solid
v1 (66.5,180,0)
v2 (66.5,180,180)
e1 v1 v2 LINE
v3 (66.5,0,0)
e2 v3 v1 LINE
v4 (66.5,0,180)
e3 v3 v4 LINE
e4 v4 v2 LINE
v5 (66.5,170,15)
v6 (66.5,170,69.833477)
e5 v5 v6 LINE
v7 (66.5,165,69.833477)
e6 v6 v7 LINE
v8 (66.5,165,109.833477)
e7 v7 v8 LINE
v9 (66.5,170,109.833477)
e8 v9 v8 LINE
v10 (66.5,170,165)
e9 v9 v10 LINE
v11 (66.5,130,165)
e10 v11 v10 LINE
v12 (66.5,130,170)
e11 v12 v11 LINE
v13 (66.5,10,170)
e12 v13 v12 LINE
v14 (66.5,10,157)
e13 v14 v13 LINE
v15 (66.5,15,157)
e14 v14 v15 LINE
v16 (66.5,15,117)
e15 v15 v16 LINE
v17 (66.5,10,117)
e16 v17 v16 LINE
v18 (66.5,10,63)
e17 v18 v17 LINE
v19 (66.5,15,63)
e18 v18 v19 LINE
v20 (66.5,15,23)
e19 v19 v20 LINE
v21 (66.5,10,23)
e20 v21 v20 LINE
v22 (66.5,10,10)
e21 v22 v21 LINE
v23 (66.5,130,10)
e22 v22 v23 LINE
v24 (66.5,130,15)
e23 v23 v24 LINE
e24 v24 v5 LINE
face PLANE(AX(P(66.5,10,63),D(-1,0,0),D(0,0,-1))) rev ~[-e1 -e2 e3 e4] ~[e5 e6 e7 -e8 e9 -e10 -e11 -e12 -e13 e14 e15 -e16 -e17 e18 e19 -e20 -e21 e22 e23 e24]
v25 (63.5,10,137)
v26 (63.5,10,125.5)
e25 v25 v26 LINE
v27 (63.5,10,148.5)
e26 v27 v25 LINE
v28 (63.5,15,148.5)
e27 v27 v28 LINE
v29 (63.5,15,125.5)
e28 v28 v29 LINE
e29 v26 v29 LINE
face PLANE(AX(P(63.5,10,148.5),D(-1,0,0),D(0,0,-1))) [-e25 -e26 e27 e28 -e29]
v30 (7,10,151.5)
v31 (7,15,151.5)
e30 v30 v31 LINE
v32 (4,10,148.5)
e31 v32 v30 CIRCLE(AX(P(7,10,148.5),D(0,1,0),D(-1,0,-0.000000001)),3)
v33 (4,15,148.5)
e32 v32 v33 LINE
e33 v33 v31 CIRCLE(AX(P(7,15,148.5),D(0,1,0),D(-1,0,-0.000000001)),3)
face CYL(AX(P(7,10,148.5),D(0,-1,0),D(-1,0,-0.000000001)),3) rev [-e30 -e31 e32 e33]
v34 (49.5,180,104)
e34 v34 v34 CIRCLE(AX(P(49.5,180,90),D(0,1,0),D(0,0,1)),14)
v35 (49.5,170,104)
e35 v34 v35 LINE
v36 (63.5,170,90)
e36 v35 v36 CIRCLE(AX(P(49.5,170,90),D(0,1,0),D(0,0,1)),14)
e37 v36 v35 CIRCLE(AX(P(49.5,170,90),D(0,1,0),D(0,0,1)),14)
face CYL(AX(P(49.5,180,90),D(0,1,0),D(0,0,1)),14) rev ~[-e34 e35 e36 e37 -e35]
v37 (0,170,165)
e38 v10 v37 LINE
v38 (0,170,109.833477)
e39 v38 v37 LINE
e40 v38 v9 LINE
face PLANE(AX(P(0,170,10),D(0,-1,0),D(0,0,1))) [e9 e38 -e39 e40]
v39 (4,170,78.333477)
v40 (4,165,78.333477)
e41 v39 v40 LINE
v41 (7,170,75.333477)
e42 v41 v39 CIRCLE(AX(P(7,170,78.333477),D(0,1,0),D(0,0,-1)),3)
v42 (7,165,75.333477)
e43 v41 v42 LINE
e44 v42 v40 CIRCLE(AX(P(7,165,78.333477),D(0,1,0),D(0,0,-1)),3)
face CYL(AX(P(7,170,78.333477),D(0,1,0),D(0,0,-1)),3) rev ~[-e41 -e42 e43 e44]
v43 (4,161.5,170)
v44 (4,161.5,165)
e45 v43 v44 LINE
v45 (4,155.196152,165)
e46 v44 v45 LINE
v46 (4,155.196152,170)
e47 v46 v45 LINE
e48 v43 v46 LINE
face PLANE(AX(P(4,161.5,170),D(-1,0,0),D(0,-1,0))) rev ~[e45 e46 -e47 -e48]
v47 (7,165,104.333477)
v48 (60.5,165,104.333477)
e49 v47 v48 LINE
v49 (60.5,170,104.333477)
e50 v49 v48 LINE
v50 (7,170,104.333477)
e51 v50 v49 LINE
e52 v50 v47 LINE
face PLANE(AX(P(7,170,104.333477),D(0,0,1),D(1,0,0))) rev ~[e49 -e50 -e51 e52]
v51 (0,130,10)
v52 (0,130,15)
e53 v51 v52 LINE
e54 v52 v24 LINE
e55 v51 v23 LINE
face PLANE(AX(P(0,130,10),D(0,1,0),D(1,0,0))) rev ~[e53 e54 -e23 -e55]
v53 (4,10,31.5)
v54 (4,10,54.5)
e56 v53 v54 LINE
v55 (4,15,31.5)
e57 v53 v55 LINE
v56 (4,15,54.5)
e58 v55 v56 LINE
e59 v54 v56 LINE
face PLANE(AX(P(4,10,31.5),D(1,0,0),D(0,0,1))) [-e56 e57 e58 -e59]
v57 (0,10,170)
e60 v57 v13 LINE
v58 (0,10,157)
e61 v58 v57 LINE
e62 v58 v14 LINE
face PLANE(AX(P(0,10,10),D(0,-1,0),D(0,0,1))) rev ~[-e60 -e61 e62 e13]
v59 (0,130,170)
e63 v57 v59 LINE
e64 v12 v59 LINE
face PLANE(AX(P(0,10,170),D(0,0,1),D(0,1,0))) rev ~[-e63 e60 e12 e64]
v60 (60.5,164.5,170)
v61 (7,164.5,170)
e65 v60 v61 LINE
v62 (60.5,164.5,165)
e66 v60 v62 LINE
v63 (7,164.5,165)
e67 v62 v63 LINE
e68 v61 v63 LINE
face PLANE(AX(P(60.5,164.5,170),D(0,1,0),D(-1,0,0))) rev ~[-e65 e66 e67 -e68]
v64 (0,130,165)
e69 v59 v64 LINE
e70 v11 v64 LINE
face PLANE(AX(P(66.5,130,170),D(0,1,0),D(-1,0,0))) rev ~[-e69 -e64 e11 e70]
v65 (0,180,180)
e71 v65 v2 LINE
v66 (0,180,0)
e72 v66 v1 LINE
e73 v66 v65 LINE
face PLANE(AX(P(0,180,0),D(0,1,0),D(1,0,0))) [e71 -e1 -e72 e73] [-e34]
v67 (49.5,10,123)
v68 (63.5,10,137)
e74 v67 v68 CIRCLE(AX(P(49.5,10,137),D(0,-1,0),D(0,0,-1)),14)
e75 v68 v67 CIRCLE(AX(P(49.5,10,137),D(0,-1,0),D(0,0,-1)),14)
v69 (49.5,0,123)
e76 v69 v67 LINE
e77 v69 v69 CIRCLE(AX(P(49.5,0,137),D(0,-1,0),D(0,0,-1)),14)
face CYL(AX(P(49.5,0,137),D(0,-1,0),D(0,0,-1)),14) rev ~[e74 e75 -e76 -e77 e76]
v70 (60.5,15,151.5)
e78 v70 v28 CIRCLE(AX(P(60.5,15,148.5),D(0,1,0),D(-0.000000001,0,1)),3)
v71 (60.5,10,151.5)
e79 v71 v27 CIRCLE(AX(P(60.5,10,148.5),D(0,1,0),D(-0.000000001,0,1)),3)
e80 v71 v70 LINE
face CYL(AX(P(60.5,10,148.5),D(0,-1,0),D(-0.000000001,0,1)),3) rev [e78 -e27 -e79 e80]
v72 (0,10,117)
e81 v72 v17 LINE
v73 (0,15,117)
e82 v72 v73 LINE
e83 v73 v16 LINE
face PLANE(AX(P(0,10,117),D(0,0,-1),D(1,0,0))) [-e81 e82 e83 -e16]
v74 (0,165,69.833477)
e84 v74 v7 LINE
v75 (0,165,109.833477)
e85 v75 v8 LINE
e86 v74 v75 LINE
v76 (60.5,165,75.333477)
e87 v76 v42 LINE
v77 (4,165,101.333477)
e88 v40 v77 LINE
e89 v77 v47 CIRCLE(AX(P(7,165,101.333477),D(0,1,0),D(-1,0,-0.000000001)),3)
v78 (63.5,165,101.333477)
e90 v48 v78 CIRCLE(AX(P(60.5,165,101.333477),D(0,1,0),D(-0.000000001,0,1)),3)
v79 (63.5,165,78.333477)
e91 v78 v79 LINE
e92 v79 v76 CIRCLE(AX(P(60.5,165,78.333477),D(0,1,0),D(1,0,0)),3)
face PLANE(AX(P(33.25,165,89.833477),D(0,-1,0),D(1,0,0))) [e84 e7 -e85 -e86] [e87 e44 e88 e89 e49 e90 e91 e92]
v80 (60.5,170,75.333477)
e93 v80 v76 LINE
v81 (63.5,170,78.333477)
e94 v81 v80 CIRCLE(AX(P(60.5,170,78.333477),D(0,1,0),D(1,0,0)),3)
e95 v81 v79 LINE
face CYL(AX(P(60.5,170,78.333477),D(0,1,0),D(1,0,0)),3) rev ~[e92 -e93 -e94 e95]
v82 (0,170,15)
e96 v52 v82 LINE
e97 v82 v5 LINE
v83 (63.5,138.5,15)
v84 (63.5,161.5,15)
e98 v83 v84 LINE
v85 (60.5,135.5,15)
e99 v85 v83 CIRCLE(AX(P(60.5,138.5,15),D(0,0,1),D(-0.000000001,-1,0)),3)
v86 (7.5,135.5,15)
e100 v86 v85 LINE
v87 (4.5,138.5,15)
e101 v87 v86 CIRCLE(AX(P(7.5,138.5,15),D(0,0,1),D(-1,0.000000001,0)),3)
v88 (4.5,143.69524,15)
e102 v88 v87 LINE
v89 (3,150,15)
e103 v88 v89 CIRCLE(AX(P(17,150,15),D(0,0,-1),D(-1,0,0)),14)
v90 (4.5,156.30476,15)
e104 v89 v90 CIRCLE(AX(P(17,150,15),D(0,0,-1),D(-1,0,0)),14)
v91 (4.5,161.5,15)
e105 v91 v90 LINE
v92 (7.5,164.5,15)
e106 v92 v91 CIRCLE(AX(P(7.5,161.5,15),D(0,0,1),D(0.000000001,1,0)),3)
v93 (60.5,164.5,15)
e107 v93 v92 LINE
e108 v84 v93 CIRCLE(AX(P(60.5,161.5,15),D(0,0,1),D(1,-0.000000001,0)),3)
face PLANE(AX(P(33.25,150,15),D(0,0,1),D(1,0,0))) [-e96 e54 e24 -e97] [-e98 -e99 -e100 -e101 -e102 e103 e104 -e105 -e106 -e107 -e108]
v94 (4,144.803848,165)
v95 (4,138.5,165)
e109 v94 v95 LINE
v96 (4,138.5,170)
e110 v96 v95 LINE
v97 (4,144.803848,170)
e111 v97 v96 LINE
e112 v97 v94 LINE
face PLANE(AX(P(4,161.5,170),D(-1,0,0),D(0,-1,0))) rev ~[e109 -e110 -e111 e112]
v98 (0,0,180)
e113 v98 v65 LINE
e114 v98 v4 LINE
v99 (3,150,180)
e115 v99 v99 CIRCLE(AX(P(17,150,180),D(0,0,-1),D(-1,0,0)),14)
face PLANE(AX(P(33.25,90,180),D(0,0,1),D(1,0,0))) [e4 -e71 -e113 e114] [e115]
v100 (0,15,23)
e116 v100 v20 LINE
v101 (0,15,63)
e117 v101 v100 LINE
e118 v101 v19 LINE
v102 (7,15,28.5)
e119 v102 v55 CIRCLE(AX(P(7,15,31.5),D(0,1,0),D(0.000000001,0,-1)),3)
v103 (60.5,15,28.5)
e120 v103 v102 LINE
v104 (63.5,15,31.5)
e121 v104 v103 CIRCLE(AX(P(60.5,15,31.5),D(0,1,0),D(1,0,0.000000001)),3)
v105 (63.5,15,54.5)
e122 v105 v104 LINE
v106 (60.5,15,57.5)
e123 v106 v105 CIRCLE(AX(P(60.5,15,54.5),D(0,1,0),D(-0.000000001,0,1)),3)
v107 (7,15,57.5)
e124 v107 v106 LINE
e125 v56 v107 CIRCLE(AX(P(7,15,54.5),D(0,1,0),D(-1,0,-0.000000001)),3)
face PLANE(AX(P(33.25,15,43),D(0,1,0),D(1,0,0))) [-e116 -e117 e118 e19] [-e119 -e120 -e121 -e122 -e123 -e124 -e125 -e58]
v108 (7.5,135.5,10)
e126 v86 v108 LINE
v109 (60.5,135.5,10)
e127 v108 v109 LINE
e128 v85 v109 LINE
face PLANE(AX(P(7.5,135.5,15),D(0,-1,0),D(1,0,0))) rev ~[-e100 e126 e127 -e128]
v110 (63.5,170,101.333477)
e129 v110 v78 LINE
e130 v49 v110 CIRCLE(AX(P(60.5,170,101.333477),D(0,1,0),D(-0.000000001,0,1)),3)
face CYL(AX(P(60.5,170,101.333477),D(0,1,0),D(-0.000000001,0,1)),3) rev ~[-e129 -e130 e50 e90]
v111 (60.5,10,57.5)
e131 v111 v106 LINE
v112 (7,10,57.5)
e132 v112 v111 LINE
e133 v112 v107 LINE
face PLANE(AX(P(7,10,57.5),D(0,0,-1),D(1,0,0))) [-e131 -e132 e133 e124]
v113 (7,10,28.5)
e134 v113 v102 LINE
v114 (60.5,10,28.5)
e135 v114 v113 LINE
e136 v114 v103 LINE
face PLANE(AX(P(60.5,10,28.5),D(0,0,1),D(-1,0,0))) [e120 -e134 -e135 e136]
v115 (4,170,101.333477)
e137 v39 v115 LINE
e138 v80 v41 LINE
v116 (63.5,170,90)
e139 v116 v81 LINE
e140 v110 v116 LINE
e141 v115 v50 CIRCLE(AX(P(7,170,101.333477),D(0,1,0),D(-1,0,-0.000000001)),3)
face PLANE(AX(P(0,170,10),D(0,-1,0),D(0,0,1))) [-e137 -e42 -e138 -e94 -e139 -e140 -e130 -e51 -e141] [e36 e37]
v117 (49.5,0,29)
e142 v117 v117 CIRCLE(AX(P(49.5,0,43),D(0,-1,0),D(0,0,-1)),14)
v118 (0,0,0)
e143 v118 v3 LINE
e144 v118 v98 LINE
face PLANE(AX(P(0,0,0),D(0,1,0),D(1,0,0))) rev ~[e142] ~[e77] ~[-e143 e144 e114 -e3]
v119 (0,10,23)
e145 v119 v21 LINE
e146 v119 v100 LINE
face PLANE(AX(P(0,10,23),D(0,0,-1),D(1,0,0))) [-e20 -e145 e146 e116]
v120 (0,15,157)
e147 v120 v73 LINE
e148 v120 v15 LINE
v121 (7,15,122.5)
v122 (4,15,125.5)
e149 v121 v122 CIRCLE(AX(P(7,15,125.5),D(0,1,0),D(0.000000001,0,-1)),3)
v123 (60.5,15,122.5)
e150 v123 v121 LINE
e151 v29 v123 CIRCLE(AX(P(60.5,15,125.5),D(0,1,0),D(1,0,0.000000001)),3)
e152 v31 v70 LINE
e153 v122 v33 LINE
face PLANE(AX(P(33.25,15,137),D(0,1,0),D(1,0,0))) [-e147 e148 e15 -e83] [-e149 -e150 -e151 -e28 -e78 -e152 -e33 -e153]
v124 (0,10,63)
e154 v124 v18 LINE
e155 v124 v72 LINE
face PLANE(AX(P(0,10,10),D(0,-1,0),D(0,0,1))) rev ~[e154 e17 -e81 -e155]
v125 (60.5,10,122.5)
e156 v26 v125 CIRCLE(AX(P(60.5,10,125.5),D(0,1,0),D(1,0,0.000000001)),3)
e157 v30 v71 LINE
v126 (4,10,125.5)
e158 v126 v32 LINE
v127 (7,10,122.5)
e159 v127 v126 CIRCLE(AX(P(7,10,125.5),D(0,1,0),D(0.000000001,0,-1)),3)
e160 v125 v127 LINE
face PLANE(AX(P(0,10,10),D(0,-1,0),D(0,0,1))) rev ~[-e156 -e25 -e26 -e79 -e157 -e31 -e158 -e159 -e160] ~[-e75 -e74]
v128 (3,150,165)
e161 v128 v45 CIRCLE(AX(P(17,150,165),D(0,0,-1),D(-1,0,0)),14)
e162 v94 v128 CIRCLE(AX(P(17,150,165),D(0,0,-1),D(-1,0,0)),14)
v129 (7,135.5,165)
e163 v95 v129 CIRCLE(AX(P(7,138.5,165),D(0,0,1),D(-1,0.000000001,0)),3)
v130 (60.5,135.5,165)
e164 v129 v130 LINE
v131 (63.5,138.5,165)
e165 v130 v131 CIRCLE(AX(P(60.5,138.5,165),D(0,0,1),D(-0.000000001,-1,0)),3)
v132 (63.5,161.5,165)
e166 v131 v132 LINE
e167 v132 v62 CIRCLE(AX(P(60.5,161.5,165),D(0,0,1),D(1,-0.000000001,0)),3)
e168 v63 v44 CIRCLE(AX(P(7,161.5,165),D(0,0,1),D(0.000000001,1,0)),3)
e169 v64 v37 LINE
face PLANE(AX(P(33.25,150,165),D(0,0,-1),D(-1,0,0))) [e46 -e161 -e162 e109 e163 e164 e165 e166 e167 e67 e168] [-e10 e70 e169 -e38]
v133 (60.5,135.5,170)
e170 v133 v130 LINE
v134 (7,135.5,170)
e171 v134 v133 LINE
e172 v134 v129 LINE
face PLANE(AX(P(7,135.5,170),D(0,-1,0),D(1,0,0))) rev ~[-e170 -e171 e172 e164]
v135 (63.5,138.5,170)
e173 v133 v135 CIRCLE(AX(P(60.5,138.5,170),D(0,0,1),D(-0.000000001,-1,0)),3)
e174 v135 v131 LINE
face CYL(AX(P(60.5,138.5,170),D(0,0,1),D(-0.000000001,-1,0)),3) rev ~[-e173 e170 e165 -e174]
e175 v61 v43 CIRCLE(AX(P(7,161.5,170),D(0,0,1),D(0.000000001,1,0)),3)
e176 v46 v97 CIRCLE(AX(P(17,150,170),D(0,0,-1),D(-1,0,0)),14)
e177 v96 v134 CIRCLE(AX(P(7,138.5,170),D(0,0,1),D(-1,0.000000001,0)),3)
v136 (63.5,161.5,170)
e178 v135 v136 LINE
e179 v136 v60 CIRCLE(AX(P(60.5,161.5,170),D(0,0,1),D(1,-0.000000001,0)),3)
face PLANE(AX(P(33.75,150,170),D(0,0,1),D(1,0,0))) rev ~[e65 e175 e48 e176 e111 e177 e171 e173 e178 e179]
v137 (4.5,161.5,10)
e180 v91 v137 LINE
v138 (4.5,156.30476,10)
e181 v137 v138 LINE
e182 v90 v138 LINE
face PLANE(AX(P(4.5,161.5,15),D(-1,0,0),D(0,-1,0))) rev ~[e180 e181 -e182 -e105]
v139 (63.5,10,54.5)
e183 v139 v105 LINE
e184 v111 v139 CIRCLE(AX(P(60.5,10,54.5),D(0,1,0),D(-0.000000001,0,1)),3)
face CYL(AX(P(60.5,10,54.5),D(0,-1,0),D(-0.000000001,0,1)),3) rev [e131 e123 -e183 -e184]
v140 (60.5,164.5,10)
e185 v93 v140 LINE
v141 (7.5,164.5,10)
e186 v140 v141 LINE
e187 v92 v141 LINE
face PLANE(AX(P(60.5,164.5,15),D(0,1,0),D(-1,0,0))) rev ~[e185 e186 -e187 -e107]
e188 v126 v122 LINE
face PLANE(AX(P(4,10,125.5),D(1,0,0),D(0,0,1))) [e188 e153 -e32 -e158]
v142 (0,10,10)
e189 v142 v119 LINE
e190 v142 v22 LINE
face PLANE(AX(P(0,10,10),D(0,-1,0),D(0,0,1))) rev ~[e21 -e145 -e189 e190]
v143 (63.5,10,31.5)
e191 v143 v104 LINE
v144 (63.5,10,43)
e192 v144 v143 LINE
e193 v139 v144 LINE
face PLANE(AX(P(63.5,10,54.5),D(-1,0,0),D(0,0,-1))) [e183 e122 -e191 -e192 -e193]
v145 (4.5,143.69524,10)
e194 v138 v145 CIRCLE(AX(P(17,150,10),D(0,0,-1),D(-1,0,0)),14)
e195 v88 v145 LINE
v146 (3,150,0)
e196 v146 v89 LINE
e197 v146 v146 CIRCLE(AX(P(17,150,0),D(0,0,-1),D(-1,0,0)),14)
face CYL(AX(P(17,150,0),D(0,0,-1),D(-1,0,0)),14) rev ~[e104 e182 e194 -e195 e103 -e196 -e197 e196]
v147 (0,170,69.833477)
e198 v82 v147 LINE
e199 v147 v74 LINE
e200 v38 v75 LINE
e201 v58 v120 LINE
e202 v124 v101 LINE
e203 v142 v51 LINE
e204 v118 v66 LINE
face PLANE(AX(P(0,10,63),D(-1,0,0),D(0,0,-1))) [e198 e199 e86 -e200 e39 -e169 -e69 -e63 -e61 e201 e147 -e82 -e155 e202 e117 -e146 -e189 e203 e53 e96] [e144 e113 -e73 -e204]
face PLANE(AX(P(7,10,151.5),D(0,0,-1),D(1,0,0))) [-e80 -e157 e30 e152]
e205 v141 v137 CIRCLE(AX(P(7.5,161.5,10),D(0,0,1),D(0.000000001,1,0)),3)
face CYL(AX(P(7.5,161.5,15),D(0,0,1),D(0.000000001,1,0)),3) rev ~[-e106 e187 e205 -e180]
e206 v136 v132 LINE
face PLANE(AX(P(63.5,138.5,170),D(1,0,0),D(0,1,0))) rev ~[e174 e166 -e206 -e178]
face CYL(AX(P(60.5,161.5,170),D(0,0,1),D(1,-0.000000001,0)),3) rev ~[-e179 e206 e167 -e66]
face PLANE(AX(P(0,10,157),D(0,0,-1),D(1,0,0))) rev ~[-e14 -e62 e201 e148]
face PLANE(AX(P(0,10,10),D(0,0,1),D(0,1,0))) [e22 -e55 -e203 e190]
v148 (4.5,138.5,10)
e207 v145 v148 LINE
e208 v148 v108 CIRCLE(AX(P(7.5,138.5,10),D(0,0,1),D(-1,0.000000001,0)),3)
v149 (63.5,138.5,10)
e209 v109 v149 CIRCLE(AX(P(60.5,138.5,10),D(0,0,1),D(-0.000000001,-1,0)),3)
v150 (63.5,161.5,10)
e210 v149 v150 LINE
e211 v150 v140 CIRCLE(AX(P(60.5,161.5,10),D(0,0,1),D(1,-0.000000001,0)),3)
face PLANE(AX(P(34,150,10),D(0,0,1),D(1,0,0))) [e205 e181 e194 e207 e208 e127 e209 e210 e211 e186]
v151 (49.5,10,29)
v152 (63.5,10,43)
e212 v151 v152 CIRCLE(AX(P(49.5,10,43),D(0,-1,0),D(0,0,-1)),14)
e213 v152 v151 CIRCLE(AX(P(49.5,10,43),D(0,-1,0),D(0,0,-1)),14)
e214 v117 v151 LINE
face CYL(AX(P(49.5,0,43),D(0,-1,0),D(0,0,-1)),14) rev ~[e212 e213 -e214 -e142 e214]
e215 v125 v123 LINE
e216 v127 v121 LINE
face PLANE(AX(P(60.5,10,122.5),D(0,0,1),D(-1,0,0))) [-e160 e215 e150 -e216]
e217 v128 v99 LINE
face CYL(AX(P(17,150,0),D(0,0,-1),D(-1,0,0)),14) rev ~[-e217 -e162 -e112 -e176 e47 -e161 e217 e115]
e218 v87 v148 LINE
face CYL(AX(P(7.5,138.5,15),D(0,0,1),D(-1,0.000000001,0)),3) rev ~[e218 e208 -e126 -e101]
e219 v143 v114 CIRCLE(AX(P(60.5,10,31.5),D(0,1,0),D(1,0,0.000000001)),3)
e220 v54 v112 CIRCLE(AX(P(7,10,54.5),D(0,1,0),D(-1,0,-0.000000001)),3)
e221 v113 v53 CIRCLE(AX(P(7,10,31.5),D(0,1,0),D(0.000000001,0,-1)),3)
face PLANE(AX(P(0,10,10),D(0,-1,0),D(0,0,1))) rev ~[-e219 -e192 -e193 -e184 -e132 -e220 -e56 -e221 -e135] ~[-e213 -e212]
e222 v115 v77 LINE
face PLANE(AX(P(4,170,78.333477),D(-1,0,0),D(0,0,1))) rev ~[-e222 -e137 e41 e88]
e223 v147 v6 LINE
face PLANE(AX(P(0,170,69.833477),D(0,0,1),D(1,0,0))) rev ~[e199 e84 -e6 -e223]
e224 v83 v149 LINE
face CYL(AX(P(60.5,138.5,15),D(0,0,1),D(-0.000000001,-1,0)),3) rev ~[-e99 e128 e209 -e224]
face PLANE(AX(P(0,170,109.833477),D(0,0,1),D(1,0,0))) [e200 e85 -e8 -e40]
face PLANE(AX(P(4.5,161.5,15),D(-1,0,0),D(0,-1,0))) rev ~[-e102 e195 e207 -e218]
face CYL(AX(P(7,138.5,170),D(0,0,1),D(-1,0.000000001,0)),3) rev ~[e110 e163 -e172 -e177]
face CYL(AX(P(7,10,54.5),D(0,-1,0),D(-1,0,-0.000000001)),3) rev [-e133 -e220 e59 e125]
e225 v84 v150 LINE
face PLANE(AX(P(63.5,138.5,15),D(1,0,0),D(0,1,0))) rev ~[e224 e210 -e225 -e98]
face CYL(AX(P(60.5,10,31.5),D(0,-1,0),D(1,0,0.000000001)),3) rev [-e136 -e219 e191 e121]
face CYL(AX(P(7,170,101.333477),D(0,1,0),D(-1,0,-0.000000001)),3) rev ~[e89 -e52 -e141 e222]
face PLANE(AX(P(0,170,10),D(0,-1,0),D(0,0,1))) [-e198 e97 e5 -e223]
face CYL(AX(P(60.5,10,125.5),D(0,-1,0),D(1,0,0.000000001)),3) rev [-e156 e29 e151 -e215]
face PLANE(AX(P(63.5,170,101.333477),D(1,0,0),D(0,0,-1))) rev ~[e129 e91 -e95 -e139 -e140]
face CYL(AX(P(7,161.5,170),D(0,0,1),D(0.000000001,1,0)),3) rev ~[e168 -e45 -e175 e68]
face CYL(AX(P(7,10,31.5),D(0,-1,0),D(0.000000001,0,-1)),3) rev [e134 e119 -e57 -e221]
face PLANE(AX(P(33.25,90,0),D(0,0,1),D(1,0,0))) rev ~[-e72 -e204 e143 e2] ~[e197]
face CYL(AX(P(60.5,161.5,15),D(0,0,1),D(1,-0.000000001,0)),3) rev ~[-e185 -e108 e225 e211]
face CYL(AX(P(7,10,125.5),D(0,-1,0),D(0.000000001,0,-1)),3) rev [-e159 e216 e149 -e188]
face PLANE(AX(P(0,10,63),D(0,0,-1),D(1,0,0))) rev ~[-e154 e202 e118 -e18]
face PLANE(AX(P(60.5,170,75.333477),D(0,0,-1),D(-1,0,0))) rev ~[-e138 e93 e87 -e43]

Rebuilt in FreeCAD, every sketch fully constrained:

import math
import FreeCAD as App
import Part
import Sketcher
Q = App.Units.Quantity


def add_polygon(sketch, points):
    """Adds a closed chain of lines whose ends are joined by coincident constraints."""
    first, n = sketch.GeometryCount, len(points)
    for a, b in zip(points, points[1:] + points[:1]):
        sketch.addGeometry(Part.LineSegment(App.Vector(*a, 0), App.Vector(*b, 0)), False)
    for i in range(n):
        sketch.addConstraint(Sketcher.Constraint("Coincident", first + i, 2, first + (i + 1) % n, 1))

doc = App.newDocument("Part")
params = doc.addObject("Spreadsheet::Sheet", "Params")
for row, (alias, value) in enumerate([
    ("sketch1_height", "180 mm"),
    ("sketch1_width", "66.5 mm"),
    ("pad1_length", "180 mm"),
    ("sketch2_width", "160 mm"),
    ("pocket1_length", "180 mm"),
    ("sketch3_height", "40 mm"),
    ("sketch3_width", "66.5 mm"),
    ("pad2_length", "5 mm"),
    ("sketch4_height", "40 mm"),
    ("sketch4_width", "66.5 mm"),
    ("pad3_length", "5 mm"),
    ("sketch5_diameter", "28 mm"),
    ("pocket2_length", "10 mm"),
    ("sketch6_radius", "3 mm"),
    ("sketch6_width", "53 mm"),
    ("sketch6_height", "23 mm"),
    ("pocket3_length", "5 mm"),
    ("sketch7_radius", "3 mm"),
    ("sketch7_height", "23 mm"),
    ("sketch7_width", "53.5 mm"),
    ("pocket4_length", "5 mm"),
    ("sketch8_radius", "3 mm"),
    ("sketch8_height", "40 mm"),
    ("sketch8_height2", "23 mm"),
    ("sketch8_width", "66.5 mm"),
    ("sketch8_width2", "53.5 mm"),
    ("pad4_length", "5 mm"),
    ("sketch9_diameter", "28 mm"),
    ("pocket5_length", "200 mm"),
    ("sketch10_diameter", "28 mm"),
    ("pocket6_length", "10 mm"),
    ("sketch11_radius", "3 mm"),
    ("sketch11_height", "40 mm"),
    ("sketch11_height2", "23 mm"),
    ("sketch11_width", "66.5 mm"),
    ("sketch11_width2", "53.5 mm"),
    ("pad5_length", "5 mm"),
], start=1):
    params.set(f"A{row}", alias)
    params.set(f"B{row}", "=" + value)
    params.setAlias(f"B{row}", alias)

body = doc.addObject("PartDesign::Body", "Body")

# Sketch on XY plane
sketch1 = body.newObject("Sketcher::SketchObject", "Sketch")
sketch1.AttachmentSupport = (doc.getObject("XY_Plane"), [""])
sketch1.MapMode = "FlatFace"
add_polygon(sketch1, [(0, 180), (0, 0), (66, 0), (66, 180)])  # lines 0-3
sketch1.addConstraint(Sketcher.Constraint("Vertical", 0))
sketch1.addConstraint(Sketcher.Constraint("Horizontal", 1))
sketch1.addConstraint(Sketcher.Constraint("Vertical", 2))
sketch1.addConstraint(Sketcher.Constraint("Horizontal", 3))
sketch1.addConstraint(Sketcher.Constraint("Coincident", 0, 2, -1, 1))
sketch1.addConstraint(Sketcher.Constraint("DistanceY", 0, 2, 0, 1, Q("180 mm")))
sketch1.addConstraint(Sketcher.Constraint("DistanceX", 1, 1, 1, 2, Q("66.5 mm")))
sketch1.setExpression("Constraints[9]", "Params.sketch1_height")
sketch1.setExpression("Constraints[10]", "Params.sketch1_width")
pad1 = body.newObject("PartDesign::Pad", "Pad")
pad1.Profile = sketch1
pad1.setExpression("Length", "Params.pad1_length")

# Sketch on YZ plane
sketch2 = body.newObject("Sketcher::SketchObject", "Sketch001")
sketch2.AttachmentSupport = (doc.getObject("YZ_Plane"), [""])
sketch2.MapMode = "FlatFace"
add_polygon(sketch2, [(170, 10), (10, 10), (10, 170), (170, 170)])  # lines 0-3
sketch2.addConstraint(Sketcher.Constraint("Horizontal", 0))
sketch2.addConstraint(Sketcher.Constraint("Vertical", 1))
sketch2.addConstraint(Sketcher.Constraint("Horizontal", 2))
sketch2.addConstraint(Sketcher.Constraint("Vertical", 3))
sketch2.addConstraint(Sketcher.Constraint("Equal", 2, 1))
sketch2.addConstraint(Sketcher.Constraint("DistanceX", 0, 2, 0, 1, Q("160 mm")))
sketch2.addConstraint(Sketcher.Constraint("DistanceX", -1, 1, 0, 2, Q("10 mm")))
sketch2.addConstraint(Sketcher.Constraint("DistanceY", -1, 1, 0, 2, Q("10 mm")))
sketch2.setExpression("Constraints[9]", "Params.sketch2_width")
pocket1 = body.newObject("PartDesign::Pocket", "Pocket")
pocket1.Profile = sketch2
pocket1.setExpression("Length", "Params.pocket1_length")
pocket1.Reversed = True

# Sketch on XY plane
sketch3 = body.newObject("Sketcher::SketchObject", "Sketch002")
sketch3.AttachmentSupport = (doc.getObject("XY_Plane"), [""])
sketch3.MapMode = "FlatFace"
sketch3.AttachmentOffset = App.Placement(App.Vector(0, 0, 10), App.Rotation())
add_polygon(sketch3, [(0, 170), (0, 130), (66, 130), (66, 170)])  # lines 0-3
sketch3.addConstraint(Sketcher.Constraint("Vertical", 0))
sketch3.addConstraint(Sketcher.Constraint("Horizontal", 1))
sketch3.addConstraint(Sketcher.Constraint("Vertical", 2))
sketch3.addConstraint(Sketcher.Constraint("Horizontal", 3))
sketch3.addConstraint(Sketcher.Constraint("PointOnObject", 0, 2, -2))
sketch3.addConstraint(Sketcher.Constraint("DistanceY", 0, 2, 0, 1, Q("40 mm")))
sketch3.addConstraint(Sketcher.Constraint("DistanceX", 1, 1, 1, 2, Q("66.5 mm")))
sketch3.addConstraint(Sketcher.Constraint("DistanceY", -1, 1, 0, 2, Q("130 mm")))
sketch3.setExpression("Constraints[9]", "Params.sketch3_height")
sketch3.setExpression("Constraints[10]", "Params.sketch3_width")
pad2 = body.newObject("PartDesign::Pad", "Pad001")
pad2.Profile = sketch3
pad2.setExpression("Length", "Params.pad2_length")

# Sketch on XY plane
sketch4 = body.newObject("Sketcher::SketchObject", "Sketch003")
sketch4.AttachmentSupport = (doc.getObject("XY_Plane"), [""])
sketch4.MapMode = "FlatFace"
sketch4.AttachmentOffset = App.Placement(App.Vector(0, 0, 170), App.Rotation())
add_polygon(sketch4, [(66, 170), (66, 130), (0, 130), (0, 170)])  # lines 0-3
sketch4.addConstraint(Sketcher.Constraint("Vertical", 0))
sketch4.addConstraint(Sketcher.Constraint("Horizontal", 1))
sketch4.addConstraint(Sketcher.Constraint("Vertical", 2))
sketch4.addConstraint(Sketcher.Constraint("Horizontal", 3))
sketch4.addConstraint(Sketcher.Constraint("PointOnObject", 1, 2, -2))
sketch4.addConstraint(Sketcher.Constraint("DistanceY", 0, 2, 0, 1, Q("40 mm")))
sketch4.addConstraint(Sketcher.Constraint("DistanceX", 1, 2, 1, 1, Q("66.5 mm")))
sketch4.addConstraint(Sketcher.Constraint("DistanceY", -1, 1, 0, 2, Q("130 mm")))
sketch4.setExpression("Constraints[9]", "Params.sketch4_height")
sketch4.setExpression("Constraints[10]", "Params.sketch4_width")
pad3 = body.newObject("PartDesign::Pad", "Pad002")
pad3.Profile = sketch4
pad3.setExpression("Length", "Params.pad3_length")
pad3.Reversed = True

# Sketch on XZ plane
sketch5 = body.newObject("Sketcher::SketchObject", "Sketch004")
sketch5.AttachmentSupport = (doc.getObject("XZ_Plane"), [""])
sketch5.MapMode = "FlatFace"
sketch5.AttachmentOffset = App.Placement(App.Vector(0, 0, -180), App.Rotation())
sketch5.addGeometry(Part.Circle(App.Vector(50, 90, 0), App.Vector(0, 0, 1), 14), False)
sketch5.addConstraint(Sketcher.Constraint("Diameter", 0, Q("28 mm")))
sketch5.addConstraint(Sketcher.Constraint("DistanceY", -1, 1, 0, 3, Q("90 mm")))
sketch5.addConstraint(Sketcher.Constraint("DistanceX", -1, 1, 0, 3, Q("49.5 mm")))
sketch5.setExpression("Constraints[0]", "Params.sketch5_diameter")
pocket2 = body.newObject("PartDesign::Pocket", "Pocket001")
pocket2.Profile = sketch5
pocket2.setExpression("Length", "Params.pocket2_length")
pocket2.Reversed = True

# Sketch on XY plane
sketch6 = body.newObject("Sketcher::SketchObject", "Sketch005")
sketch6.AttachmentSupport = (doc.getObject("XY_Plane"), [""])
sketch6.MapMode = "FlatFace"
sketch6.AttachmentOffset = App.Placement(App.Vector(0, 0, 15), App.Rotation())
sketch6.addGeometry(Part.LineSegment(App.Vector(60.5, 164.5, 0), App.Vector(7.5, 164.5, 0)), False)
sketch6.addGeometry(Part.ArcOfCircle(Part.Circle(App.Vector(7.5, 161.5, 0), App.Vector(0, 0, 1), 3), math.radians(90), math.radians(180)), False)
sketch6.addGeometry(Part.LineSegment(App.Vector(4.5, 161.5, 0), App.Vector(4.5, 138.5, 0)), False)
sketch6.addGeometry(Part.ArcOfCircle(Part.Circle(App.Vector(7.5, 138.5, 0), App.Vector(0, 0, 1), 3), math.radians(180), math.radians(270)), False)
sketch6.addGeometry(Part.LineSegment(App.Vector(7.5, 135.5, 0), App.Vector(60.5, 135.5, 0)), False)
sketch6.addGeometry(Part.ArcOfCircle(Part.Circle(App.Vector(60.5, 138.5, 0), App.Vector(0, 0, 1), 3), math.radians(-90), math.radians(0)), False)
sketch6.addGeometry(Part.LineSegment(App.Vector(63.5, 138.5, 0), App.Vector(63.5, 161.5, 0)), False)
sketch6.addGeometry(Part.ArcOfCircle(Part.Circle(App.Vector(60.5, 161.5, 0), App.Vector(0, 0, 1), 3), math.radians(0), math.radians(90)), False)
sketch6.addConstraint(Sketcher.Constraint("Tangent", 0, 2, 1, 1))
sketch6.addConstraint(Sketcher.Constraint("Tangent", 1, 2, 2, 1))
sketch6.addConstraint(Sketcher.Constraint("Tangent", 2, 2, 3, 1))
sketch6.addConstraint(Sketcher.Constraint("Tangent", 3, 2, 4, 1))
sketch6.addConstraint(Sketcher.Constraint("Tangent", 4, 2, 5, 1))
sketch6.addConstraint(Sketcher.Constraint("Tangent", 5, 2, 6, 1))
sketch6.addConstraint(Sketcher.Constraint("Tangent", 6, 2, 7, 1))
sketch6.addConstraint(Sketcher.Constraint("Tangent", 7, 2, 0, 1))
sketch6.addConstraint(Sketcher.Constraint("Horizontal", 0))
sketch6.addConstraint(Sketcher.Constraint("Vertical", 2))
sketch6.addConstraint(Sketcher.Constraint("Horizontal", 4))
sketch6.addConstraint(Sketcher.Constraint("Vertical", 6))
sketch6.addConstraint(Sketcher.Constraint("Equal", 1, 3))
sketch6.addConstraint(Sketcher.Constraint("Equal", 3, 5))
sketch6.addConstraint(Sketcher.Constraint("Equal", 5, 7))
sketch6.addConstraint(Sketcher.Constraint("Radius", 1, Q("3 mm")))
sketch6.addConstraint(Sketcher.Constraint("DistanceX", 0, 2, 0, 1, Q("53 mm")))
sketch6.addConstraint(Sketcher.Constraint("DistanceY", 2, 2, 2, 1, Q("23 mm")))
sketch6.addConstraint(Sketcher.Constraint("DistanceX", -1, 1, 1, 3, Q("7.5 mm")))
sketch6.addConstraint(Sketcher.Constraint("DistanceY", -1, 1, 1, 3, Q("161.5 mm")))
sketch6.setExpression("Constraints[15]", "Params.sketch6_radius")
sketch6.setExpression("Constraints[16]", "Params.sketch6_width")
sketch6.setExpression("Constraints[17]", "Params.sketch6_height")
pocket3 = body.newObject("PartDesign::Pocket", "Pocket002")
pocket3.Profile = sketch6
pocket3.setExpression("Length", "Params.pocket3_length")

# Sketch on XY plane
sketch7 = body.newObject("Sketcher::SketchObject", "Sketch006")
sketch7.AttachmentSupport = (doc.getObject("XY_Plane"), [""])
sketch7.MapMode = "FlatFace"
sketch7.AttachmentOffset = App.Placement(App.Vector(0, 0, 170), App.Rotation())
sketch7.addGeometry(Part.LineSegment(App.Vector(7, 164.5, 0), App.Vector(60.5, 164.5, 0)), False)
sketch7.addGeometry(Part.ArcOfCircle(Part.Circle(App.Vector(60.5, 161.5, 0), App.Vector(0, 0, 1), 3), math.radians(0), math.radians(90)), False)
sketch7.addGeometry(Part.LineSegment(App.Vector(63.5, 161.5, 0), App.Vector(63.5, 138.5, 0)), False)
sketch7.addGeometry(Part.ArcOfCircle(Part.Circle(App.Vector(60.5, 138.5, 0), App.Vector(0, 0, 1), 3), math.radians(-90), math.radians(0)), False)
sketch7.addGeometry(Part.LineSegment(App.Vector(60.5, 135.5, 0), App.Vector(7, 135.5, 0)), False)
sketch7.addGeometry(Part.ArcOfCircle(Part.Circle(App.Vector(7, 138.5, 0), App.Vector(0, 0, 1), 3), math.radians(180), math.radians(270)), False)
sketch7.addGeometry(Part.LineSegment(App.Vector(4, 138.5, 0), App.Vector(4, 161.5, 0)), False)
sketch7.addGeometry(Part.ArcOfCircle(Part.Circle(App.Vector(7, 161.5, 0), App.Vector(0, 0, 1), 3), math.radians(90), math.radians(180)), False)
sketch7.addConstraint(Sketcher.Constraint("Tangent", 0, 2, 1, 2))
sketch7.addConstraint(Sketcher.Constraint("Tangent", 1, 1, 2, 1))
sketch7.addConstraint(Sketcher.Constraint("Tangent", 2, 2, 3, 2))
sketch7.addConstraint(Sketcher.Constraint("Tangent", 3, 1, 4, 1))
sketch7.addConstraint(Sketcher.Constraint("Tangent", 4, 2, 5, 2))
sketch7.addConstraint(Sketcher.Constraint("Tangent", 5, 1, 6, 1))
sketch7.addConstraint(Sketcher.Constraint("Tangent", 6, 2, 7, 2))
sketch7.addConstraint(Sketcher.Constraint("Tangent", 7, 1, 0, 1))
sketch7.addConstraint(Sketcher.Constraint("Horizontal", 0))
sketch7.addConstraint(Sketcher.Constraint("Vertical", 2))
sketch7.addConstraint(Sketcher.Constraint("Horizontal", 4))
sketch7.addConstraint(Sketcher.Constraint("Vertical", 6))
sketch7.addConstraint(Sketcher.Constraint("Equal", 1, 3))
sketch7.addConstraint(Sketcher.Constraint("Equal", 3, 5))
sketch7.addConstraint(Sketcher.Constraint("Equal", 5, 7))
sketch7.addConstraint(Sketcher.Constraint("Radius", 1, Q("3 mm")))
sketch7.addConstraint(Sketcher.Constraint("DistanceY", 2, 2, 2, 1, Q("23 mm")))
sketch7.addConstraint(Sketcher.Constraint("DistanceX", 0, 1, 0, 2, Q("53.5 mm")))
sketch7.addConstraint(Sketcher.Constraint("DistanceX", -1, 1, 5, 3, Q("7 mm")))
sketch7.addConstraint(Sketcher.Constraint("DistanceY", -1, 1, 1, 3, Q("161.5 mm")))
sketch7.setExpression("Constraints[15]", "Params.sketch7_radius")
sketch7.setExpression("Constraints[16]", "Params.sketch7_height")
sketch7.setExpression("Constraints[17]", "Params.sketch7_width")
pocket4 = body.newObject("PartDesign::Pocket", "Pocket003")
pocket4.Profile = sketch7
pocket4.setExpression("Length", "Params.pocket4_length")

# Sketch on XZ plane
sketch8 = body.newObject("Sketcher::SketchObject", "Sketch007")
sketch8.AttachmentSupport = (doc.getObject("XZ_Plane"), [""])
sketch8.MapMode = "FlatFace"
sketch8.AttachmentOffset = App.Placement(App.Vector(0, 0, -170), App.Rotation())
add_polygon(sketch8, [(0, 109.8), (0, 69.8), (66.5, 69.8), (66.5, 109.8)])  # lines 0-3
sketch8.addGeometry(Part.ArcOfCircle(Part.Circle(App.Vector(60.5, 78.3, 0), App.Vector(0, 0, 1), 3), math.radians(-90), math.radians(0)), False)  # 4
sketch8.addGeometry(Part.LineSegment(App.Vector(60.5, 75.3, 0), App.Vector(7, 75.3, 0)), False)  # 5
sketch8.addGeometry(Part.ArcOfCircle(Part.Circle(App.Vector(7, 78.3, 0), App.Vector(0, 0, 1), 3), math.radians(180), math.radians(270)), False)  # 6
sketch8.addGeometry(Part.LineSegment(App.Vector(4, 78.3, 0), App.Vector(4, 101.3, 0)), False)  # 7
sketch8.addGeometry(Part.ArcOfCircle(Part.Circle(App.Vector(7, 101.3, 0), App.Vector(0, 0, 1), 3), math.radians(90), math.radians(180)), False)  # 8
sketch8.addGeometry(Part.LineSegment(App.Vector(7, 104.3, 0), App.Vector(60.5, 104.3, 0)), False)  # 9
sketch8.addGeometry(Part.ArcOfCircle(Part.Circle(App.Vector(60.5, 101.3, 0), App.Vector(0, 0, 1), 3), math.radians(0), math.radians(90)), False)  # 10
sketch8.addGeometry(Part.LineSegment(App.Vector(63.5, 101.3, 0), App.Vector(63.5, 78.3, 0)), False)  # 11
sketch8.addConstraint(Sketcher.Constraint("Tangent", 4, 1, 5, 1))
sketch8.addConstraint(Sketcher.Constraint("Tangent", 5, 2, 6, 2))
sketch8.addConstraint(Sketcher.Constraint("Tangent", 6, 1, 7, 1))
sketch8.addConstraint(Sketcher.Constraint("Tangent", 7, 2, 8, 2))
sketch8.addConstraint(Sketcher.Constraint("Tangent", 8, 1, 9, 1))
sketch8.addConstraint(Sketcher.Constraint("Tangent", 9, 2, 10, 2))
sketch8.addConstraint(Sketcher.Constraint("Tangent", 10, 1, 11, 1))
sketch8.addConstraint(Sketcher.Constraint("Tangent", 11, 2, 4, 2))
sketch8.addConstraint(Sketcher.Constraint("Vertical", 0))
sketch8.addConstraint(Sketcher.Constraint("Horizontal", 1))
sketch8.addConstraint(Sketcher.Constraint("Vertical", 2))
sketch8.addConstraint(Sketcher.Constraint("Horizontal", 3))
sketch8.addConstraint(Sketcher.Constraint("Horizontal", 5))
sketch8.addConstraint(Sketcher.Constraint("Vertical", 7))
sketch8.addConstraint(Sketcher.Constraint("Horizontal", 9))
sketch8.addConstraint(Sketcher.Constraint("Vertical", 11))
sketch8.addConstraint(Sketcher.Constraint("Equal", 4, 6))
sketch8.addConstraint(Sketcher.Constraint("Equal", 6, 8))
sketch8.addConstraint(Sketcher.Constraint("Equal", 8, 10))
sketch8.addConstraint(Sketcher.Constraint("PointOnObject", 0, 2, -2))
sketch8.addConstraint(Sketcher.Constraint("Radius", 4, Q("3 mm")))
sketch8.addConstraint(Sketcher.Constraint("DistanceY", 0, 2, 0, 1, Q("40 mm")))
sketch8.addConstraint(Sketcher.Constraint("DistanceY", 7, 1, 7, 2, Q("23 mm")))
sketch8.addConstraint(Sketcher.Constraint("DistanceX", 1, 1, 1, 2, Q("66.5 mm")))
sketch8.addConstraint(Sketcher.Constraint("DistanceX", 5, 2, 5, 1, Q("53.5 mm")))
sketch8.addConstraint(Sketcher.Constraint("DistanceX", -1, 1, 6, 3, Q("7 mm")))
sketch8.addConstraint(Sketcher.Constraint("DistanceY", 0, 2, 6, 3, Q("8.5 mm")))
sketch8.addConstraint(Sketcher.Constraint("DistanceY", -1, 1, 4, 3, Q("78.333477 mm")))
sketch8.setExpression("Constraints[24]", "Params.sketch8_radius")
sketch8.setExpression("Constraints[25]", "Params.sketch8_height")
sketch8.setExpression("Constraints[26]", "Params.sketch8_height2")
sketch8.setExpression("Constraints[27]", "Params.sketch8_width")
sketch8.setExpression("Constraints[28]", "Params.sketch8_width2")
pad4 = body.newObject("PartDesign::Pad", "Pad003")
pad4.Profile = sketch8
pad4.setExpression("Length", "Params.pad4_length")

# Sketch on XY plane
sketch9 = body.newObject("Sketcher::SketchObject", "Sketch008")
sketch9.AttachmentSupport = (doc.getObject("XY_Plane"), [""])
sketch9.MapMode = "FlatFace"
sketch9.addGeometry(Part.Circle(App.Vector(17, 150, 0), App.Vector(0, 0, 1), 14), False)
sketch9.addConstraint(Sketcher.Constraint("Diameter", 0, Q("28 mm")))
sketch9.addConstraint(Sketcher.Constraint("DistanceX", -1, 1, 0, 3, Q("17 mm")))
sketch9.addConstraint(Sketcher.Constraint("DistanceY", -1, 1, 0, 3, Q("150 mm")))
sketch9.setExpression("Constraints[0]", "Params.sketch9_diameter")
pocket5 = body.newObject("PartDesign::Pocket", "Pocket004")
pocket5.Profile = sketch9
pocket5.setExpression("Length", "Params.pocket5_length")
pocket5.Reversed = True

# Sketch on XZ plane
sketch10 = body.newObject("Sketcher::SketchObject", "Sketch009")
sketch10.AttachmentSupport = (doc.getObject("XZ_Plane"), [""])
sketch10.MapMode = "FlatFace"
sketch10.addGeometry(Part.Circle(App.Vector(50, 43, 0), App.Vector(0, 0, 1), 14), False)
sketch10.addGeometry(Part.Circle(App.Vector(50, 137, 0), App.Vector(0, 0, 1), 14), False)
sketch10.addConstraint(Sketcher.Constraint("Equal", 0, 1))
sketch10.addConstraint(Sketcher.Constraint("Vertical", 0, 3, 1, 3))
sketch10.addConstraint(Sketcher.Constraint("Diameter", 0, Q("28 mm")))
sketch10.addConstraint(Sketcher.Constraint("DistanceY", -1, 1, 0, 3, Q("43 mm")))
sketch10.addConstraint(Sketcher.Constraint("DistanceY", -1, 1, 1, 3, Q("137 mm")))
sketch10.addConstraint(Sketcher.Constraint("DistanceX", -1, 1, 0, 3, Q("49.5 mm")))
sketch10.setExpression("Constraints[2]", "Params.sketch10_diameter")
pocket6 = body.newObject("PartDesign::Pocket", "Pocket005")
pocket6.Profile = sketch10
pocket6.setExpression("Length", "Params.pocket6_length")

# Sketch on XZ plane
sketch11 = body.newObject("Sketcher::SketchObject", "Sketch010")
sketch11.AttachmentSupport = (doc.getObject("XZ_Plane"), [""])
sketch11.MapMode = "FlatFace"
sketch11.AttachmentOffset = App.Placement(App.Vector(0, 0, -10), App.Rotation())
add_polygon(sketch11, [(0, 23), (0, 63), (66.5, 63), (66.5, 23)])  # lines 0-3
sketch11.addGeometry(Part.LineSegment(App.Vector(60.5, 57.5, 0), App.Vector(7, 57.5, 0)), False)  # 4
sketch11.addGeometry(Part.ArcOfCircle(Part.Circle(App.Vector(7, 54.5, 0), App.Vector(0, 0, 1), 3), math.radians(90), math.radians(180)), False)  # 5
sketch11.addGeometry(Part.LineSegment(App.Vector(4, 54.5, 0), App.Vector(4, 31.5, 0)), False)  # 6
sketch11.addGeometry(Part.ArcOfCircle(Part.Circle(App.Vector(7, 31.5, 0), App.Vector(0, 0, 1), 3), math.radians(180), math.radians(270)), False)  # 7
sketch11.addGeometry(Part.LineSegment(App.Vector(7, 28.5, 0), App.Vector(60.5, 28.5, 0)), False)  # 8
sketch11.addGeometry(Part.ArcOfCircle(Part.Circle(App.Vector(60.5, 31.5, 0), App.Vector(0, 0, 1), 3), math.radians(-90), math.radians(0)), False)  # 9
sketch11.addGeometry(Part.LineSegment(App.Vector(63.5, 31.5, 0), App.Vector(63.5, 54.5, 0)), False)  # 10
sketch11.addGeometry(Part.ArcOfCircle(Part.Circle(App.Vector(60.5, 54.5, 0), App.Vector(0, 0, 1), 3), math.radians(0), math.radians(90)), False)  # 11
add_polygon(sketch11, [(0, 117), (0, 157), (66.5, 157), (66.5, 117)])  # lines 12-15
sketch11.addGeometry(Part.LineSegment(App.Vector(60.5, 151.5, 0), App.Vector(7, 151.5, 0)), False)  # 16
sketch11.addGeometry(Part.ArcOfCircle(Part.Circle(App.Vector(7, 148.5, 0), App.Vector(0, 0, 1), 3), math.radians(90), math.radians(180)), False)  # 17
sketch11.addGeometry(Part.LineSegment(App.Vector(4, 148.5, 0), App.Vector(4, 125.5, 0)), False)  # 18
sketch11.addGeometry(Part.ArcOfCircle(Part.Circle(App.Vector(7, 125.5, 0), App.Vector(0, 0, 1), 3), math.radians(180), math.radians(270)), False)  # 19
sketch11.addGeometry(Part.LineSegment(App.Vector(7, 122.5, 0), App.Vector(60.5, 122.5, 0)), False)  # 20
sketch11.addGeometry(Part.ArcOfCircle(Part.Circle(App.Vector(60.5, 125.5, 0), App.Vector(0, 0, 1), 3), math.radians(-90), math.radians(0)), False)  # 21
sketch11.addGeometry(Part.LineSegment(App.Vector(63.5, 125.5, 0), App.Vector(63.5, 148.5, 0)), False)  # 22
sketch11.addGeometry(Part.ArcOfCircle(Part.Circle(App.Vector(60.5, 148.5, 0), App.Vector(0, 0, 1), 3), math.radians(0), math.radians(90)), False)  # 23
sketch11.addConstraint(Sketcher.Constraint("Tangent", 4, 2, 5, 1))
sketch11.addConstraint(Sketcher.Constraint("Tangent", 5, 2, 6, 1))
sketch11.addConstraint(Sketcher.Constraint("Tangent", 6, 2, 7, 1))
sketch11.addConstraint(Sketcher.Constraint("Tangent", 7, 2, 8, 1))
sketch11.addConstraint(Sketcher.Constraint("Tangent", 8, 2, 9, 1))
sketch11.addConstraint(Sketcher.Constraint("Tangent", 9, 2, 10, 1))
sketch11.addConstraint(Sketcher.Constraint("Tangent", 10, 2, 11, 1))
sketch11.addConstraint(Sketcher.Constraint("Tangent", 11, 2, 4, 1))
sketch11.addConstraint(Sketcher.Constraint("Tangent", 16, 2, 17, 1))
sketch11.addConstraint(Sketcher.Constraint("Tangent", 17, 2, 18, 1))
sketch11.addConstraint(Sketcher.Constraint("Tangent", 18, 2, 19, 1))
sketch11.addConstraint(Sketcher.Constraint("Tangent", 19, 2, 20, 1))
sketch11.addConstraint(Sketcher.Constraint("Tangent", 20, 2, 21, 1))
sketch11.addConstraint(Sketcher.Constraint("Tangent", 21, 2, 22, 1))
sketch11.addConstraint(Sketcher.Constraint("Tangent", 22, 2, 23, 1))
sketch11.addConstraint(Sketcher.Constraint("Tangent", 23, 2, 16, 1))
sketch11.addConstraint(Sketcher.Constraint("Vertical", 0))
sketch11.addConstraint(Sketcher.Constraint("Horizontal", 1))
sketch11.addConstraint(Sketcher.Constraint("Vertical", 2))
sketch11.addConstraint(Sketcher.Constraint("Horizontal", 3))
sketch11.addConstraint(Sketcher.Constraint("Horizontal", 4))
sketch11.addConstraint(Sketcher.Constraint("Vertical", 6))
sketch11.addConstraint(Sketcher.Constraint("Horizontal", 8))
sketch11.addConstraint(Sketcher.Constraint("Vertical", 10))
sketch11.addConstraint(Sketcher.Constraint("Vertical", 12))
sketch11.addConstraint(Sketcher.Constraint("Horizontal", 13))
sketch11.addConstraint(Sketcher.Constraint("Vertical", 14))
sketch11.addConstraint(Sketcher.Constraint("Horizontal", 15))
sketch11.addConstraint(Sketcher.Constraint("Horizontal", 16))
sketch11.addConstraint(Sketcher.Constraint("Vertical", 18))
sketch11.addConstraint(Sketcher.Constraint("Horizontal", 20))
sketch11.addConstraint(Sketcher.Constraint("Vertical", 22))
sketch11.addConstraint(Sketcher.Constraint("Equal", 5, 7))
sketch11.addConstraint(Sketcher.Constraint("Equal", 7, 9))
sketch11.addConstraint(Sketcher.Constraint("Equal", 9, 11))
sketch11.addConstraint(Sketcher.Constraint("Equal", 11, 17))
sketch11.addConstraint(Sketcher.Constraint("Equal", 17, 19))
sketch11.addConstraint(Sketcher.Constraint("Equal", 19, 21))
sketch11.addConstraint(Sketcher.Constraint("Equal", 21, 23))
sketch11.addConstraint(Sketcher.Constraint("PointOnObject", 0, 2, -2))
sketch11.addConstraint(Sketcher.Constraint("PointOnObject", 12, 2, -2))
sketch11.addConstraint(Sketcher.Constraint("Vertical", 7, 3, 17, 3))
sketch11.addConstraint(Sketcher.Constraint("Vertical", 11, 3, 21, 3))
sketch11.addConstraint(Sketcher.Constraint("Vertical", 2, 2, 13, 2))
sketch11.addConstraint(Sketcher.Constraint("Equal", 2, 12))
sketch11.addConstraint(Sketcher.Constraint("Equal", 10, 18))
sketch11.addConstraint(Sketcher.Constraint("Radius", 5, Q("3 mm")))
sketch11.addConstraint(Sketcher.Constraint("DistanceY", 0, 1, 0, 2, Q("40 mm")))
sketch11.addConstraint(Sketcher.Constraint("DistanceY", 6, 2, 6, 1, Q("23 mm")))
sketch11.addConstraint(Sketcher.Constraint("DistanceX", 1, 1, 1, 2, Q("66.5 mm")))
sketch11.addConstraint(Sketcher.Constraint("DistanceX", 4, 2, 4, 1, Q("53.5 mm")))
sketch11.addConstraint(Sketcher.Constraint("DistanceX", -1, 1, 5, 3, Q("7 mm")))
sketch11.addConstraint(Sketcher.Constraint("DistanceY", -1, 1, 0, 2, Q("63 mm")))
sketch11.addConstraint(Sketcher.Constraint("DistanceY", -1, 1, 12, 2, Q("157 mm")))
sketch11.addConstraint(Sketcher.Constraint("DistanceY", 5, 3, 17, 3, Q("94 mm")))
sketch11.addConstraint(Sketcher.Constraint("DistanceY", -1, 1, 5, 3, Q("54.5 mm")))
sketch11.setExpression("Constraints[54]", "Params.sketch11_radius")
sketch11.setExpression("Constraints[55]", "Params.sketch11_height")
sketch11.setExpression("Constraints[56]", "Params.sketch11_height2")
sketch11.setExpression("Constraints[57]", "Params.sketch11_width")
sketch11.setExpression("Constraints[58]", "Params.sketch11_width2")
pad5 = body.newObject("PartDesign::Pad", "Pad004")
pad5.Profile = sketch11
pad5.setExpression("Length", "Params.pad5_length")
pad5.Reversed = True

doc.recompute()
